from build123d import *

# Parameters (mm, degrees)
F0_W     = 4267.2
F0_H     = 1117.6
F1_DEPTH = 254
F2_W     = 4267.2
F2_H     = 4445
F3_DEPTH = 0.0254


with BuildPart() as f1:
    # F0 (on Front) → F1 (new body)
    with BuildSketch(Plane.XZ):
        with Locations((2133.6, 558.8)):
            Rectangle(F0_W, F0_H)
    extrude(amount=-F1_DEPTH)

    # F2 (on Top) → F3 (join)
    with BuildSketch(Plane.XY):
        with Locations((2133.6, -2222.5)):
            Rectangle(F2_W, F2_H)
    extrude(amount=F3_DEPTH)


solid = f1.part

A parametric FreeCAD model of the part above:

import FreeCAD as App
import Part
import Sketcher

V = App.Vector
Q = App.Units.Quantity


def add_polygon(sketch, points):
    """Adds a closed chain of lines whose ends are joined by coincident constraints."""
    first, n = sketch.GeometryCount, len(points)
    for a, b in zip(points, points[1:] + points[:1]):
        sketch.addGeometry(Part.LineSegment(App.Vector(*a, 0), App.Vector(*b, 0)), False)
    for i in range(n):
        sketch.addConstraint(Sketcher.Constraint("Coincident", first + i, 2, first + (i + 1) % n, 1))

doc = App.newDocument("Part")
body = doc.addObject("PartDesign::Body", "Body")

sketch1 = body.newObject("Sketcher::SketchObject", "Sketch")
sketch1.AttachmentSupport = (doc.getObject("XZ_Plane"), [""])
sketch1.MapMode = "FlatFace"
add_polygon(sketch1, [(0, 1118), (0, 0), (4267, 0), (4267, 1118)])
sketch1.addConstraint(Sketcher.Constraint("Vertical", 0))
sketch1.addConstraint(Sketcher.Constraint("Horizontal", 1))
sketch1.addConstraint(Sketcher.Constraint("Vertical", 2))
sketch1.addConstraint(Sketcher.Constraint("Horizontal", 3))
sketch1.addConstraint(Sketcher.Constraint("Coincident", 0, 2, -1, 1))
sketch1.addConstraint(Sketcher.Constraint("DistanceX", 1, 1, 1, 2, Q("168 in")))
sketch1.addConstraint(Sketcher.Constraint("DistanceY", 0, 2, 0, 1, Q("44 in")))
pad1 = body.newObject("PartDesign::Pad", "Pad")
pad1.Profile = sketch1
pad1.Length = Q("10 in")
pad1.Reversed = True

sketch2 = body.newObject("Sketcher::SketchObject", "Sketch001")
sketch2.AttachmentSupport = (doc.getObject("XY_Plane"), [""])
sketch2.MapMode = "FlatFace"
add_polygon(sketch2, [(0, 0), (0, -4445), (4267, -4445), (4267, 0)])
sketch2.addConstraint(Sketcher.Constraint("Vertical", 0))
sketch2.addConstraint(Sketcher.Constraint("Horizontal", 1))
sketch2.addConstraint(Sketcher.Constraint("Vertical", 2))
sketch2.addConstraint(Sketcher.Constraint("Horizontal", 3))
sketch2.addConstraint(Sketcher.Constraint("Coincident", 3, 2, -1, 1))
sketch2.addConstraint(Sketcher.Constraint("DistanceX", 1, 1, 1, 2, Q("168 in")))
sketch2.addConstraint(Sketcher.Constraint("DistanceY", 0, 2, 0, 1, Q("175 in")))
pad2 = body.newObject("PartDesign::Pad", "Pad001")
pad2.Profile = sketch2
pad2.Length = Q("0.001 in")

doc.recompute()
